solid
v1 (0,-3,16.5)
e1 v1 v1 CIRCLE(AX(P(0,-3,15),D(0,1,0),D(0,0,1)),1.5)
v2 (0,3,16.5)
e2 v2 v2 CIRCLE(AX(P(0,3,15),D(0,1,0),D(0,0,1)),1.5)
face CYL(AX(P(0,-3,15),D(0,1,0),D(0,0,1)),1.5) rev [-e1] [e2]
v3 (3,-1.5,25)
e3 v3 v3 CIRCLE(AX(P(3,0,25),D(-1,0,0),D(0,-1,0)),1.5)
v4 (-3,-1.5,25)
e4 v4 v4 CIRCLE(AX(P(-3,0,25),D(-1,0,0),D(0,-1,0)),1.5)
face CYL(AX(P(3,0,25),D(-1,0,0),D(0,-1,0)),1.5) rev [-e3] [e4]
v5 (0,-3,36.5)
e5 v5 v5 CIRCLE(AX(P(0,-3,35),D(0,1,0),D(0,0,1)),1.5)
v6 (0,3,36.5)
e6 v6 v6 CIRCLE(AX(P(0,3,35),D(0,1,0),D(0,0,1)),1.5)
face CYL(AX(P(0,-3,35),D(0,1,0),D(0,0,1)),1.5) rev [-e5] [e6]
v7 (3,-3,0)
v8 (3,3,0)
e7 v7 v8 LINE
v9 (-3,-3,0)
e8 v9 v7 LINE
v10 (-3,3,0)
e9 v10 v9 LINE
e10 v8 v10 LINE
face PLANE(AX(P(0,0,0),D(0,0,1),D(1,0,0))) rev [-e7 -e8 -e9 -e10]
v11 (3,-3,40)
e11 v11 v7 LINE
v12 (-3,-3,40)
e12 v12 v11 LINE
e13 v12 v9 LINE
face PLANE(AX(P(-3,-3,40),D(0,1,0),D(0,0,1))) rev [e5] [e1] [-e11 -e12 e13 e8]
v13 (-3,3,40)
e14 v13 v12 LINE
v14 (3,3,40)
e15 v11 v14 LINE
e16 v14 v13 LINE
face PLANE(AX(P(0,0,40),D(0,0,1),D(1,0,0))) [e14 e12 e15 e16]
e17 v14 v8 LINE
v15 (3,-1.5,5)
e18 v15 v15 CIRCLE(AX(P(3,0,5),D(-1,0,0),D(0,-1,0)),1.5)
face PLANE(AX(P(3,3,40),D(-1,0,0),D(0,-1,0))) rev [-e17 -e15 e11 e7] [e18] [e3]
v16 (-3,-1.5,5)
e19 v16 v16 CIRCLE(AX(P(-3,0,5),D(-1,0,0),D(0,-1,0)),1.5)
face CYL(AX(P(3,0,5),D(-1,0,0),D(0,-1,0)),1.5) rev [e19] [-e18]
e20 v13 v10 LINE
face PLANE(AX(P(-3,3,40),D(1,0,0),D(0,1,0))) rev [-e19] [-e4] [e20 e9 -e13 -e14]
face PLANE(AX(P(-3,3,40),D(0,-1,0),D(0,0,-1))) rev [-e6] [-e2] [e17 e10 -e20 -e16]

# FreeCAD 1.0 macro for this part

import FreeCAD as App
import Part
import Sketcher
Q = App.Units.Quantity


def add_polygon(sketch, points):
    """Adds a closed chain of lines whose ends are joined by coincident constraints."""
    first, n = sketch.GeometryCount, len(points)
    for a, b in zip(points, points[1:] + points[:1]):
        sketch.addGeometry(Part.LineSegment(App.Vector(*a, 0), App.Vector(*b, 0)), False)
    for i in range(n):
        sketch.addConstraint(Sketcher.Constraint("Coincident", first + i, 2, first + (i + 1) % n, 1))

doc = App.newDocument("Part")
body = doc.addObject("PartDesign::Body", "Body")

# Sketch on XY plane
sketch1 = body.newObject("Sketcher::SketchObject", "Sketch")
sketch1.AttachmentSupport = (doc.getObject("XY_Plane"), [""])
sketch1.MapMode = "FlatFace"
add_polygon(sketch1, [(-3, 3), (-3, -3), (3, -3), (3, 3)])  # lines 0-3
sketch1.addConstraint(Sketcher.Constraint("Vertical", 0))
sketch1.addConstraint(Sketcher.Constraint("Horizontal", 1))
sketch1.addConstraint(Sketcher.Constraint("Vertical", 2))
sketch1.addConstraint(Sketcher.Constraint("Horizontal", 3))
sketch1.addConstraint(Sketcher.Constraint("Symmetric", 0, 2, 2, 2, -1, 1))
sketch1.addConstraint(Sketcher.Constraint("Equal", 3, 0))
sketch1.addConstraint(Sketcher.Constraint("DistanceX", 1, 1, 1, 2, Q("6 mm")))
pad1 = body.newObject("PartDesign::Pad", "Pad")
pad1.Profile = sketch1
pad1.Length = 40

# Sketch on YZ plane
sketch2 = body.newObject("Sketcher::SketchObject", "Sketch001")
sketch2.AttachmentSupport = (doc.getObject("YZ_Plane"), [""])
sketch2.MapMode = "FlatFace"
sketch2.AttachmentOffset = App.Placement(App.Vector(0, 0, -3), App.Rotation())
sketch2.addGeometry(Part.Circle(App.Vector(0, 5, 0), App.Vector(0, 0, 1), 1.5), False)
sketch2.addGeometry(Part.Circle(App.Vector(0, 25, 0), App.Vector(0, 0, 1), 1.5), False)
sketch2.addConstraint(Sketcher.Constraint("Equal", 0, 1))
sketch2.addConstraint(Sketcher.Constraint("PointOnObject", 0, 3, -2))
sketch2.addConstraint(Sketcher.Constraint("PointOnObject", 1, 3, -2))
sketch2.addConstraint(Sketcher.Constraint("Diameter", 0, Q("3 mm")))
sketch2.addConstraint(Sketcher.Constraint("DistanceY", -1, 1, 0, 3, Q("5 mm")))
sketch2.addConstraint(Sketcher.Constraint("DistanceY", -1, 1, 1, 3, Q("25 mm")))
pocket1 = body.newObject("PartDesign::Pocket", "Pocket")
pocket1.Profile = sketch2
pocket1.Type = "ThroughAll"
pocket1.Reversed = True

# Sketch on XZ plane
sketch3 = body.newObject("Sketcher::SketchObject", "Sketch002")
sketch3.AttachmentSupport = (doc.getObject("XZ_Plane"), [""])
sketch3.MapMode = "FlatFace"
sketch3.AttachmentOffset = App.Placement(App.Vector(0, 0, -3), App.Rotation())
sketch3.addGeometry(Part.Circle(App.Vector(0, 15, 0), App.Vector(0, 0, 1), 1.5), False)
sketch3.addGeometry(Part.Circle(App.Vector(0, 35, 0), App.Vector(0, 0, 1), 1.5), False)
sketch3.addConstraint(Sketcher.Constraint("Equal", 0, 1))
sketch3.addConstraint(Sketcher.Constraint("PointOnObject", 0, 3, -2))
sketch3.addConstraint(Sketcher.Constraint("PointOnObject", 1, 3, -2))
sketch3.addConstraint(Sketcher.Constraint("Diameter", 0, Q("3 mm")))
sketch3.addConstraint(Sketcher.Constraint("DistanceY", -1, 1, 0, 3, Q("15 mm")))
sketch3.addConstraint(Sketcher.Constraint("DistanceY", -1, 1, 1, 3, Q("35 mm")))
pocket2 = body.newObject("PartDesign::Pocket", "Pocket001")
pocket2.Profile = sketch3
pocket2.Type = "ThroughAll"
pocket2.Reversed = True

doc.recompute()
